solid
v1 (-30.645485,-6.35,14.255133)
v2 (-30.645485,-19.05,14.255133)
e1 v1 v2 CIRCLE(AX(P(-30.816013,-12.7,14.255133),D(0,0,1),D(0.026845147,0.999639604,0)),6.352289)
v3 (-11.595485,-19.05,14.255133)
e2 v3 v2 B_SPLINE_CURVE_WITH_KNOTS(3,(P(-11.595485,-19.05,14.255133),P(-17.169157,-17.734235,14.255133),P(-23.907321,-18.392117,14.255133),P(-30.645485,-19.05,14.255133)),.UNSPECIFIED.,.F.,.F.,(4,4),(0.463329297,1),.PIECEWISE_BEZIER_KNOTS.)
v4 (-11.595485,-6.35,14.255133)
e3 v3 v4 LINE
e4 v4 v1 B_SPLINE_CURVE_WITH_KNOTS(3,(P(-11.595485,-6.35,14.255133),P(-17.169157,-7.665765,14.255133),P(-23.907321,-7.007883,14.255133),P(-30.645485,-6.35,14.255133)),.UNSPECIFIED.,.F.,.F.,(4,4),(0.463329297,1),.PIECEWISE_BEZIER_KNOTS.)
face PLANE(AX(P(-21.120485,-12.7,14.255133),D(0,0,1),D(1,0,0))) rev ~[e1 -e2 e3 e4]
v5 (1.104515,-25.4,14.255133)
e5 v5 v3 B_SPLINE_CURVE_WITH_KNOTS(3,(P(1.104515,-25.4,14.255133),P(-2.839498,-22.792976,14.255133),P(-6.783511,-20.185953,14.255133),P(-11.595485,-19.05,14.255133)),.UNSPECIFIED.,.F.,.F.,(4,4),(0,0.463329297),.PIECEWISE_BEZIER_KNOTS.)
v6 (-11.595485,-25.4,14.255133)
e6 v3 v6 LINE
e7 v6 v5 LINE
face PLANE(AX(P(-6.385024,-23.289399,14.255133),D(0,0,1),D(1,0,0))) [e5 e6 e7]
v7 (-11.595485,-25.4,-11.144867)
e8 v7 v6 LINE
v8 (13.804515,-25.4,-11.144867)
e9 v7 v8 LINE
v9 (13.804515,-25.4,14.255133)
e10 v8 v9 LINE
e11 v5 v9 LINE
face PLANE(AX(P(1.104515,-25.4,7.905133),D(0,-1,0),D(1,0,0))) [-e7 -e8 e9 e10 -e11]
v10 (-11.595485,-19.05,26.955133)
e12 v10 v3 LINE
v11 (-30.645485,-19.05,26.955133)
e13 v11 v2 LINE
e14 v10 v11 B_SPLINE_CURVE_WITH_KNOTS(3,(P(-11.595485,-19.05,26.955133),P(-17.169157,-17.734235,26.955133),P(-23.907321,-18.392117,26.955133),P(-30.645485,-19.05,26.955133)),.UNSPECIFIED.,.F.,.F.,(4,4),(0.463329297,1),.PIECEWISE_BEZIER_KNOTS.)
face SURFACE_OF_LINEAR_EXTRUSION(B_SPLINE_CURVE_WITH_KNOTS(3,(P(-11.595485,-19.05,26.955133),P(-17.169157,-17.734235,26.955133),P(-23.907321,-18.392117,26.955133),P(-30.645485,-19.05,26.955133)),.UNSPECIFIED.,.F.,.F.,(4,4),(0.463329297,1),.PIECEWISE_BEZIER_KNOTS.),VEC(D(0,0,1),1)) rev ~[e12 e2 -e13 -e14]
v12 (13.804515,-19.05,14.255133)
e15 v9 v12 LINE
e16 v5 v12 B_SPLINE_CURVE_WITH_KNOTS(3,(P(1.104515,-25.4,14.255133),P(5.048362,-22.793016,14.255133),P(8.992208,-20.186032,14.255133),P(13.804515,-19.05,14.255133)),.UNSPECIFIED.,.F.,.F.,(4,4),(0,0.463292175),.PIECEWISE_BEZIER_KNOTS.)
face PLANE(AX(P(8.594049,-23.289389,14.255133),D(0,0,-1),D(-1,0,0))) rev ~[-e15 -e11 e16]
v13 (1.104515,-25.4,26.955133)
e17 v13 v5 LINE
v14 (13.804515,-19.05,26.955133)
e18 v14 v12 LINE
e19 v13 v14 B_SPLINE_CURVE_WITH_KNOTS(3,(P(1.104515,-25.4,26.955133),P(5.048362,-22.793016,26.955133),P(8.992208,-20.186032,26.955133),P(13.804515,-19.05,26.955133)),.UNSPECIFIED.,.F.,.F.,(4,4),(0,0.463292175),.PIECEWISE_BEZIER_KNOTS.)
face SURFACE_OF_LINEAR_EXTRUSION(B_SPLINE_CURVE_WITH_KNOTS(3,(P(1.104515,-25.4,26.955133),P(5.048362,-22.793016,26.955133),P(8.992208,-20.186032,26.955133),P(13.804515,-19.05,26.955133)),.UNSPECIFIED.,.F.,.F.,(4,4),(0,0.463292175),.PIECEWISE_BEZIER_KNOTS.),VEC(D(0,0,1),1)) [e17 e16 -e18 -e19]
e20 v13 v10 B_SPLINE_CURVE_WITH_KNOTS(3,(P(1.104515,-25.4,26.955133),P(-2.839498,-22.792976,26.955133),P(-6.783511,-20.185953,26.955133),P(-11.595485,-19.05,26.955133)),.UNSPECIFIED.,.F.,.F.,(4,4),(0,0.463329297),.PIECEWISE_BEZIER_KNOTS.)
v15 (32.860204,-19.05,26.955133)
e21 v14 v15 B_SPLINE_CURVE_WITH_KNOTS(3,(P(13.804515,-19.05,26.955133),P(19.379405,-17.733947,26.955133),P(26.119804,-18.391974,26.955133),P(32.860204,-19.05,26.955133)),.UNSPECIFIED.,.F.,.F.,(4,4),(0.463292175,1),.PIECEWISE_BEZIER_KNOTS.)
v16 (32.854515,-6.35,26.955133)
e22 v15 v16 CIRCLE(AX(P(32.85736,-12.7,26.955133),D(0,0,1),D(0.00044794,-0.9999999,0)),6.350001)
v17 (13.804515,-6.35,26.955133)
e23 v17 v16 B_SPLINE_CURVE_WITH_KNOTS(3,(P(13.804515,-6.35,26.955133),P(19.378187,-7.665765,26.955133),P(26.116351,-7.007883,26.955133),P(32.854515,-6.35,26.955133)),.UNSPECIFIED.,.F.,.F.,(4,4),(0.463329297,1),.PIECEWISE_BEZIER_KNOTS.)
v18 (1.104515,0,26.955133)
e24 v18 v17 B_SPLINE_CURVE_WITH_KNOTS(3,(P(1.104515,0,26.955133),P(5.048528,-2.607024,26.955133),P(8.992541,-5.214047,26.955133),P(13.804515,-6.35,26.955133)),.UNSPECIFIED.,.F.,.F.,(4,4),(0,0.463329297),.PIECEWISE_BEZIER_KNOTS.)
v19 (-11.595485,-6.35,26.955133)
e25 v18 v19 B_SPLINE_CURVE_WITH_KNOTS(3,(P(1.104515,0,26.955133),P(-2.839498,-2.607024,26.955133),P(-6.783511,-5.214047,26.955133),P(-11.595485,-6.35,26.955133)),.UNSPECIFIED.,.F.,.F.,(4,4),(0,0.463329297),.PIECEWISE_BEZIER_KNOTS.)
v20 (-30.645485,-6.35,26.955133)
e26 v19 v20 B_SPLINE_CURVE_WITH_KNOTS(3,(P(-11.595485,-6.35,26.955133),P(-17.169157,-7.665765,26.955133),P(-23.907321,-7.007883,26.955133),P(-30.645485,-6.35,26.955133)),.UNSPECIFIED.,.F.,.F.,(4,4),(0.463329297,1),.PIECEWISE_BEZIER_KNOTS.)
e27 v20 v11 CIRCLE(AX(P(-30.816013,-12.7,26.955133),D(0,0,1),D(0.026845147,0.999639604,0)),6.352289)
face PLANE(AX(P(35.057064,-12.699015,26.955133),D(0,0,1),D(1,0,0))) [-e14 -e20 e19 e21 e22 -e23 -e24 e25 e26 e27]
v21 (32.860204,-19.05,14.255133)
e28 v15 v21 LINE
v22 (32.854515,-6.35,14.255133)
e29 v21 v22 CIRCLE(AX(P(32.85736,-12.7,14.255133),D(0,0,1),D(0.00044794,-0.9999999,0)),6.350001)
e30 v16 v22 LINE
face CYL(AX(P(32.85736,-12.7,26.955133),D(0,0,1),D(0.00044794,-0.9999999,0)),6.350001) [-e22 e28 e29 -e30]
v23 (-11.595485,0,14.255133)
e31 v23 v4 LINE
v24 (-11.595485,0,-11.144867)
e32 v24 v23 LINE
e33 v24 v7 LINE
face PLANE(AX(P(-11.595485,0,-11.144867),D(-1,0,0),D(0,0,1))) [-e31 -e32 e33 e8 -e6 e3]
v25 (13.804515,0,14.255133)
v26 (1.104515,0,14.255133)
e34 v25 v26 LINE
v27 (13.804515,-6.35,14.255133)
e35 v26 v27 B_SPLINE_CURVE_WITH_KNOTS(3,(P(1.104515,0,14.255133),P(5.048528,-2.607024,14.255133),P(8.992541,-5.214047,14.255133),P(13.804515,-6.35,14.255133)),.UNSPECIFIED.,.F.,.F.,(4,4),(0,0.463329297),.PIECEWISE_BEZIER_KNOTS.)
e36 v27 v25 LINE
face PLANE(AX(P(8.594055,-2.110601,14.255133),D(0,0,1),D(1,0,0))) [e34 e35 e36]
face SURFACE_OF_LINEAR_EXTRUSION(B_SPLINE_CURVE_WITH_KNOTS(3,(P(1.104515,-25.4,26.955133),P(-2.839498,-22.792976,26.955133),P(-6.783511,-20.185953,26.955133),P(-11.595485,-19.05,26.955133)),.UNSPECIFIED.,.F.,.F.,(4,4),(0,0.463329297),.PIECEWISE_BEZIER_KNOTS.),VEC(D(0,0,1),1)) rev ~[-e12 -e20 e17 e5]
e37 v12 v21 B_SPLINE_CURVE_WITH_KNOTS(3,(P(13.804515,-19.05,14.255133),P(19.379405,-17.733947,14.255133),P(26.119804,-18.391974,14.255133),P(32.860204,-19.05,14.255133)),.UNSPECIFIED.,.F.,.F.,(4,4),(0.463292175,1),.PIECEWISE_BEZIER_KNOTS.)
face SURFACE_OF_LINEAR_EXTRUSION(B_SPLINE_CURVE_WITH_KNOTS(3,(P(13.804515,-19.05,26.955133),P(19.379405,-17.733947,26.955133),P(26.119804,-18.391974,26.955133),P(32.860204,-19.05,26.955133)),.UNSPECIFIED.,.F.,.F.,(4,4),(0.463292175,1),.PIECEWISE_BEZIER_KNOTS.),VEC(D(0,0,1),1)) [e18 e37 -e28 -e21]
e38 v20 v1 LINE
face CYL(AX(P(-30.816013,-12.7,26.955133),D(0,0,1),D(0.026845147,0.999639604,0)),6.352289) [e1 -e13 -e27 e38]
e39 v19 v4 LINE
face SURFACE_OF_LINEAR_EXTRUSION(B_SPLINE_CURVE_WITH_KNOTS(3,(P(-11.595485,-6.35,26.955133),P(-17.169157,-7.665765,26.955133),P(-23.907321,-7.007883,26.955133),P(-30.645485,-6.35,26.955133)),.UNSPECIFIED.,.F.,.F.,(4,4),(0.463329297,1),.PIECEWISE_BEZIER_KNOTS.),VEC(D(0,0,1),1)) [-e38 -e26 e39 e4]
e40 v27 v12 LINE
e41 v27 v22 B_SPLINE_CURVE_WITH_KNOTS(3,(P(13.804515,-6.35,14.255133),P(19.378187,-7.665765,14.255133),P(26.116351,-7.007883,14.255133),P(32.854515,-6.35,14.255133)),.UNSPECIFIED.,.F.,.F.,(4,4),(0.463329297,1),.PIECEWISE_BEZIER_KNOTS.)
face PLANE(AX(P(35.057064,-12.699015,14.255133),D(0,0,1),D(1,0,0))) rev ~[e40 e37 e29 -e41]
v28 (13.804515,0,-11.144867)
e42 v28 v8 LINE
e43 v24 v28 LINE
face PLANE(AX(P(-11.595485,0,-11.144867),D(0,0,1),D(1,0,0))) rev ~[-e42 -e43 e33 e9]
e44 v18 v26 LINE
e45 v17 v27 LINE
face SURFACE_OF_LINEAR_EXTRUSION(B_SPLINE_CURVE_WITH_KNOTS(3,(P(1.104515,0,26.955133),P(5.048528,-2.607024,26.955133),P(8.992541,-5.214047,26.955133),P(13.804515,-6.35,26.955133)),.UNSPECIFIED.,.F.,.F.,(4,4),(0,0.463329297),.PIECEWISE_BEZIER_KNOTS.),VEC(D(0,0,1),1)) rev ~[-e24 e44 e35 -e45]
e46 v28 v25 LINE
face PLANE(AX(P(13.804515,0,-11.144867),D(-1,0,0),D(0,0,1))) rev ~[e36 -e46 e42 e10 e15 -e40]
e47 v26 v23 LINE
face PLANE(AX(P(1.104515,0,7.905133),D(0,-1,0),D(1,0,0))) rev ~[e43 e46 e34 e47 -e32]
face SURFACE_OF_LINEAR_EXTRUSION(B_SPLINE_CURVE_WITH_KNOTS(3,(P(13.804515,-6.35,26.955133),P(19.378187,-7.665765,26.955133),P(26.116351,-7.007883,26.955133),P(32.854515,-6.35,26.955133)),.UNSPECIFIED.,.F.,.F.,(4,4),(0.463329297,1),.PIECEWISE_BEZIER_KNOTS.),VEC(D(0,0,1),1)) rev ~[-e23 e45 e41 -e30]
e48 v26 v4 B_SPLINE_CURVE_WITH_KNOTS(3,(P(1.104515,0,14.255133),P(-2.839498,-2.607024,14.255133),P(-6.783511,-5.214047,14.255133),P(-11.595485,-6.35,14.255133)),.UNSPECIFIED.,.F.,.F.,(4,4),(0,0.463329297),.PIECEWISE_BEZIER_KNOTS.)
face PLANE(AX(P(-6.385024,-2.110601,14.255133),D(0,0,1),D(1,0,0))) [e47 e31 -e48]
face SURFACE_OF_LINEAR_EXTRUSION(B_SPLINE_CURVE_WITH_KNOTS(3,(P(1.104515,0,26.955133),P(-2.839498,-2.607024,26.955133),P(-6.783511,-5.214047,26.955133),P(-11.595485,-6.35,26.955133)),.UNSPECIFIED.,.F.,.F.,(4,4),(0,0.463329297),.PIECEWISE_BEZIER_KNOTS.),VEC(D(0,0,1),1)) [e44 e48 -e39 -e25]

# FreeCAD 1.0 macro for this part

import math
import FreeCAD as App
import Part
import Sketcher

V = App.Vector
Q = App.Units.Quantity


def add_polygon(sketch, points):
    """Adds a closed chain of lines whose ends are joined by coincident constraints."""
    first, n = sketch.GeometryCount, len(points)
    for a, b in zip(points, points[1:] + points[:1]):
        sketch.addGeometry(Part.LineSegment(App.Vector(*a, 0), App.Vector(*b, 0)), False)
    for i in range(n):
        sketch.addConstraint(Sketcher.Constraint("Coincident", first + i, 2, first + (i + 1) % n, 1))

doc = App.newDocument("Part")
body = doc.addObject("PartDesign::Body", "Body")

# Sketch on XZ plane
sketch1 = doc.addObject("Sketcher::SketchObject", "Sketch")
body.addObject(sketch1)
sketch1.AttachmentSupport = (doc.XZ_Plane, [""])
sketch1.MapMode = "FlatFace"
add_polygon(sketch1, [(-12, 27), (-12, -11), (14, -11), (14, 27)])  # lines 0-3
sketch1.addConstraint(Sketcher.Constraint("Vertical", 0))
sketch1.addConstraint(Sketcher.Constraint("Horizontal", 1))
sketch1.addConstraint(Sketcher.Constraint("Vertical", 2))
sketch1.addConstraint(Sketcher.Constraint("Horizontal", 3))
sketch1.addConstraint(Sketcher.Constraint("DistanceX", 1, 1, 1, 2, Q("1 in")))
sketch1.addConstraint(Sketcher.Constraint("DistanceY", 0, 2, 0, 1, Q("1.5 in")))
sketch1.addConstraint(Sketcher.Constraint("DistanceX", 0, 2, -1, 1, Q("11.595485 mm")))
sketch1.addConstraint(Sketcher.Constraint("DistanceY", 0, 2, -1, 1, Q("11.144867 mm")))
pad1 = doc.addObject("PartDesign::Pad", "Pad")
body.addObject(pad1)
pad1.Profile = sketch1
pad1.Length = Q("1 in")

# Sketch on XY plane
sketch2 = doc.addObject("Sketcher::SketchObject", "Sketch001")
body.addObject(sketch2)
sketch2.AttachmentSupport = (doc.XY_Plane, [""])
sketch2.MapMode = "FlatFace"
sketch2.AttachmentOffset = App.Placement(V(0, 0, 26.955133), App.Rotation())
add_polygon(sketch2, [(-31, -6), (-31, -19), (-12, -19), (-12, -6)])  # lines 0-3
add_polygon(sketch2, [(14, -6), (14, -19), (33, -19), (33, -6)])  # lines 4-7
sketch2.addConstraint(Sketcher.Constraint("Vertical", 0))
sketch2.addConstraint(Sketcher.Constraint("Horizontal", 1))
sketch2.addConstraint(Sketcher.Constraint("Vertical", 2))
sketch2.addConstraint(Sketcher.Constraint("Horizontal", 3))
sketch2.addConstraint(Sketcher.Constraint("Vertical", 4))
sketch2.addConstraint(Sketcher.Constraint("Horizontal", 5))
sketch2.addConstraint(Sketcher.Constraint("Horizontal", 7))
sketch2.addConstraint(Sketcher.Constraint("Horizontal", 1, 2, 4, 2))
sketch2.addConstraint(Sketcher.Constraint("Horizontal", 3, 2, 6, 2))
sketch2.addConstraint(Sketcher.Constraint("Equal", 3, 7))
sketch2.addConstraint(Sketcher.Constraint("DistanceY", 0, 2, 0, 1, Q("0.5 in")))
sketch2.addConstraint(Sketcher.Constraint("DistanceX", 1, 2, 4, 2, Q("1 in")))
sketch2.addConstraint(Sketcher.Constraint("DistanceX", 1, 1, 1, 2, Q("0.75 in")))
sketch2.addConstraint(Sketcher.Constraint("DistanceY", 0, 2, -1, 1, Q("0.75 in")))
sketch2.addConstraint(Sketcher.Constraint("DistanceX", 5, 1, 5, 2, Q("19.055689 mm")))
sketch2.addConstraint(Sketcher.Constraint("DistanceX", 0, 2, -1, 1, Q("30.645485 mm")))
pad2 = doc.addObject("PartDesign::Pad", "Pad001")
body.addObject(pad2)
pad2.Profile = sketch2
pad2.Length = Q("0.5 in")
pad2.Reversed = True

# Sketch on XY plane
sketch3 = doc.addObject("Sketcher::SketchObject", "Sketch002")
body.addObject(sketch3)
sketch3.AttachmentSupport = (doc.XY_Plane, [""])
sketch3.MapMode = "FlatFace"
sketch3.AttachmentOffset = App.Placement(V(0, 0, 26.955133), App.Rotation())
sketch3.addGeometry(Part.LineSegment(V(-11.595485, -19.05, 0), V(-11.595485, -25.4, 0)), False)
sketch3.addGeometry(Part.LineSegment(V(-11.595485, -25.4, 0), V(1.104515, -25.4, 0)), False)
sketch3.addGeometry(Part.BSplineCurve([V(1.104515, -25.4, 0), V(-2.839498, -22.792976, 0), V(-6.783511, -20.185953, 0), V(-11.595485, -19.05, 0)], [4, 4], [0, 0.463329297], False, 3, [1, 1, 1, 1], False), False)
sketch3.addGeometry(Part.BSplineCurve([V(1.104515, -25.4, 0), V(5.048362, -22.793016, 0), V(8.992208, -20.186032, 0), V(13.804515, -19.05, 0)], [4, 4], [0, 0.463292175], False, 3, [1, 1, 1, 1], False), False)
sketch3.addGeometry(Part.LineSegment(V(1.104515, -25.4, 0), V(13.804515, -25.4, 0)), False)
sketch3.addGeometry(Part.LineSegment(V(13.804515, -25.4, 0), V(13.804515, -19.05, 0)), False)
sketch3.addGeometry(Part.BSplineCurve([V(1.104515, 0, 0), V(5.048528, -2.607024, 0), V(8.992541, -5.214047, 0), V(13.804515, -6.35, 0)], [4, 4], [0, 0.463329297], False, 3, [1, 1, 1, 1], False), False)
sketch3.addGeometry(Part.LineSegment(V(13.804515, -6.35, 0), V(13.804515, 0, 0)), False)
sketch3.addGeometry(Part.LineSegment(V(13.804515, 0, 0), V(1.104515, 0, 0)), False)
sketch3.addGeometry(Part.LineSegment(V(-11.595485, 0, 0), V(-11.595485, -6.35, 0)), False)
sketch3.addGeometry(Part.BSplineCurve([V(1.104515, 0, 0), V(-2.839498, -2.607024, 0), V(-6.783511, -5.214047, 0), V(-11.595485, -6.35, 0)], [4, 4], [0, 0.463329297], False, 3, [1, 1, 1, 1], False), False)
sketch3.addGeometry(Part.LineSegment(V(1.104515, 0, 0), V(-11.595485, 0, 0)), False)
sketch3.addGeometry(Part.BSplineCurve([V(13.804515, -19.05, 0), V(19.379405, -17.733947, 0), V(26.119804, -18.391974, 0), V(32.860204, -19.05, 0)], [4, 4], [0.463292175, 1], False, 3, [1, 1, 1, 1], False), False)
sketch3.addGeometry(Part.LineSegment(V(13.804515, -19.05, 0), V(32.860204, -19.05, 0)), False)
sketch3.addGeometry(Part.BSplineCurve([V(13.804515, -6.35, 0), V(19.378187, -7.665765, 0), V(26.116351, -7.007883, 0), V(32.854515, -6.35, 0)], [4, 4], [0.463329297, 1], False, 3, [1, 1, 1, 1], False), False)
sketch3.addGeometry(Part.LineSegment(V(32.854515, -6.35, 0), V(13.804515, -6.35, 0)), False)
sketch3.addGeometry(Part.LineSegment(V(-11.595485, -6.35, 0), V(-30.645485, -6.35, 0)), False)
sketch3.addGeometry(Part.BSplineCurve([V(-11.595485, -6.35, 0), V(-17.169157, -7.665765, 0), V(-23.907321, -7.007883, 0), V(-30.645485, -6.35, 0)], [4, 4], [0.463329297, 1], False, 3, [1, 1, 1, 1], False), False)
sketch3.addGeometry(Part.LineSegment(V(-30.645485, -19.05, 0), V(-11.595485, -19.05, 0)), False)
sketch3.addGeometry(Part.BSplineCurve([V(-11.595485, -19.05, 0), V(-17.169157, -17.734235, 0), V(-23.907321, -18.392117, 0), V(-30.645485, -19.05, 0)], [4, 4], [0.463329297, 1], False, 3, [1, 1, 1, 1], False), False)
sketch3.addConstraint(Sketcher.Constraint("Block", 2))
sketch3.addConstraint(Sketcher.Constraint("Block", 3))
sketch3.addConstraint(Sketcher.Constraint("Block", 6))
sketch3.addConstraint(Sketcher.Constraint("Block", 10))
sketch3.addConstraint(Sketcher.Constraint("Block", 12))
sketch3.addConstraint(Sketcher.Constraint("Block", 14))
sketch3.addConstraint(Sketcher.Constraint("Block", 17))
sketch3.addConstraint(Sketcher.Constraint("Block", 19))
sketch3.addConstraint(Sketcher.Constraint("Coincident", 0, 2, 1, 1))
sketch3.addConstraint(Sketcher.Constraint("Coincident", 1, 2, 2, 1))
sketch3.addConstraint(Sketcher.Constraint("Coincident", 2, 2, 0, 1))
sketch3.addConstraint(Sketcher.Constraint("Coincident", 3, 1, 4, 1))
sketch3.addConstraint(Sketcher.Constraint("Coincident", 4, 2, 5, 1))
sketch3.addConstraint(Sketcher.Constraint("Coincident", 5, 2, 3, 2))
sketch3.addConstraint(Sketcher.Constraint("Coincident", 6, 2, 7, 1))
sketch3.addConstraint(Sketcher.Constraint("Coincident", 7, 2, 8, 1))
sketch3.addConstraint(Sketcher.Constraint("Coincident", 8, 2, 6, 1))
sketch3.addConstraint(Sketcher.Constraint("Coincident", 9, 2, 10, 2))
sketch3.addConstraint(Sketcher.Constraint("Coincident", 10, 1, 11, 1))
sketch3.addConstraint(Sketcher.Constraint("Coincident", 11, 2, 9, 1))
sketch3.addConstraint(Sketcher.Constraint("Coincident", 12, 1, 13, 1))
sketch3.addConstraint(Sketcher.Constraint("Coincident", 13, 2, 12, 2))
sketch3.addConstraint(Sketcher.Constraint("Coincident", 14, 1, 15, 2))
sketch3.addConstraint(Sketcher.Constraint("Coincident", 15, 1, 14, 2))
sketch3.addConstraint(Sketcher.Constraint("Coincident", 16, 1, 17, 1))
sketch3.addConstraint(Sketcher.Constraint("Coincident", 17, 2, 16, 2))
sketch3.addConstraint(Sketcher.Constraint("Coincident", 18, 1, 19, 2))
sketch3.addConstraint(Sketcher.Constraint("Coincident", 19, 1, 18, 2))
sketch3.addConstraint(Sketcher.Constraint("Vertical", 0))
sketch3.addConstraint(Sketcher.Constraint("Horizontal", 1))
sketch3.addConstraint(Sketcher.Constraint("Horizontal", 4))
sketch3.addConstraint(Sketcher.Constraint("Vertical", 5))
sketch3.addConstraint(Sketcher.Constraint("Vertical", 7))
sketch3.addConstraint(Sketcher.Constraint("Horizontal", 8))
sketch3.addConstraint(Sketcher.Constraint("Vertical", 9))
sketch3.addConstraint(Sketcher.Constraint("Horizontal", 11))
pocket1 = doc.addObject("PartDesign::Pocket", "Pocket")
body.addObject(pocket1)
pocket1.Profile = sketch3
pocket1.Length = Q("0.5 in")

# Sketch on XY plane
sketch4 = doc.addObject("Sketcher::SketchObject", "Sketch003")
body.addObject(sketch4)
sketch4.AttachmentSupport = (doc.XY_Plane, [""])
sketch4.MapMode = "FlatFace"
sketch4.AttachmentOffset = App.Placement(V(0, 0, 26.955133), App.Rotation())
sketch4.addGeometry(Part.ArcOfCircle(Part.Circle(V(32.85736, -12.7, 0), V(0, 0, 1), 6.350001), math.radians(-89.974335), math.radians(90.025665)), False)
sketch4.addGeometry(Part.LineSegment(V(32.854515, -6.35, 0), V(32.860204, -19.05, 0)), False)
sketch4.addGeometry(Part.LineSegment(V(-30.645485, -19.05, 0), V(-30.645485, -6.35, 0)), False)
sketch4.addGeometry(Part.ArcOfCircle(Part.Circle(V(-30.816013, -12.7, 0), V(0, 0, 1), 6.352289), math.radians(88.461702), math.radians(271.538298)), False)
sketch4.addConstraint(Sketcher.Constraint("Coincident", 0, 1, 1, 2))
sketch4.addConstraint(Sketcher.Constraint("Coincident", 1, 1, 0, 2))
sketch4.addConstraint(Sketcher.Constraint("Coincident", 2, 1, 3, 2))
sketch4.addConstraint(Sketcher.Constraint("Coincident", 3, 1, 2, 2))
sketch4.addConstraint(Sketcher.Constraint("Vertical", 2))
sketch4.addConstraint(Sketcher.Constraint("Radius", 0, Q("0.25 in")))
sketch4.addConstraint(Sketcher.Constraint("DistanceY", 2, 1, 2, 2, Q("0.5 in")))
sketch4.addConstraint(Sketcher.Constraint("DistanceY", 0, 3, -1, 1, Q("0.5 in")))
sketch4.addConstraint(Sketcher.Constraint("DistanceY", 3, 3, -1, 1, Q("0.5 in")))
sketch4.addConstraint(Sketcher.Constraint("DistanceX", 2, 1, 1, 1, Q("2.5 in")))
sketch4.addConstraint(Sketcher.Constraint("Radius", 3, Q("6.352289 mm")))
sketch4.addConstraint(Sketcher.Constraint("DistanceX", -1, 1, 0, 3, Q("32.85736 mm")))
sketch4.addConstraint(Sketcher.Constraint("DistanceX", 1, 1, 0, 1, Q("0.005689 mm")))
sketch4.addConstraint(Sketcher.Constraint("DistanceX", 3, 3, -1, 1, Q("30.816013 mm")))
pad3 = doc.addObject("PartDesign::Pad", "Pad002")
body.addObject(pad3)
pad3.Profile = sketch4
pad3.Length = Q("0.5 in")
pad3.Reversed = True

doc.recompute()
